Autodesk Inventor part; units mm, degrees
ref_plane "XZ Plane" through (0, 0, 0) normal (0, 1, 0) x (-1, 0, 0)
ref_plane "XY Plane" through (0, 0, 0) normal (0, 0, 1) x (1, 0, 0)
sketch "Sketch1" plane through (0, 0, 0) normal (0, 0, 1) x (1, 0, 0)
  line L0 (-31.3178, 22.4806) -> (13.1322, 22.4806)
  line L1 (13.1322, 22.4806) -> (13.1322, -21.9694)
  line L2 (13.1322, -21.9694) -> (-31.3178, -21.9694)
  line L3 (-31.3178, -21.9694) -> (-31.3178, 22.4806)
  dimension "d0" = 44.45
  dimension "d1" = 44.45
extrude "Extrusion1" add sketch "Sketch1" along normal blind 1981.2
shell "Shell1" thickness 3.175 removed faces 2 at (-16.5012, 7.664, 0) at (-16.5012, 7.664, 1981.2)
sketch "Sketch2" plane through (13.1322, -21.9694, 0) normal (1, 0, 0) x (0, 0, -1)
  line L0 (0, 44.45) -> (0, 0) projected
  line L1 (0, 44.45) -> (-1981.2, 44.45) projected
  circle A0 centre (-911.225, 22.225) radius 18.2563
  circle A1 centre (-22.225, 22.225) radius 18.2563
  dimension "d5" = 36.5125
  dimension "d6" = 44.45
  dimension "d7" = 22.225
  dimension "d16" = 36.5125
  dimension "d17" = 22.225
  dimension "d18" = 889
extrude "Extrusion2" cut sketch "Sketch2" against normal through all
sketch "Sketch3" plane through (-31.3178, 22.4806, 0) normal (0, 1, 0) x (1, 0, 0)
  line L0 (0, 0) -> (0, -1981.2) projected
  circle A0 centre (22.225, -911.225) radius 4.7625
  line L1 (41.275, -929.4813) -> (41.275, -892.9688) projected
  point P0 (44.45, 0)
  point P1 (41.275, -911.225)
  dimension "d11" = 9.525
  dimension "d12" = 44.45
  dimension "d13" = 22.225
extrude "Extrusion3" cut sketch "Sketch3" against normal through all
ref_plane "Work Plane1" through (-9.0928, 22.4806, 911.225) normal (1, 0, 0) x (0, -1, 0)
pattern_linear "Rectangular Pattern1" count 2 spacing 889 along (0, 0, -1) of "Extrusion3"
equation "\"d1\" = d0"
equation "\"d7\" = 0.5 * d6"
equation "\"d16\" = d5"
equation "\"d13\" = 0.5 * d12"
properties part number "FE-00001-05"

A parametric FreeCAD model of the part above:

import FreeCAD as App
import Part
import Sketcher

V = App.Vector
Q = App.Units.Quantity


def faces_at(feature, points):
    """Names of the faces that lie closest to the given points."""
    faces = feature.Shape.Faces
    near = lambda p: min(range(len(faces)), key=lambda i: faces[i].distToShape(Part.Vertex(*p))[0])
    return sorted({f"Face{near(p) + 1}" for p in points})


def add_polygon(sketch, points):
    """Adds a closed chain of lines whose ends are joined by coincident constraints."""
    first, n = sketch.GeometryCount, len(points)
    for a, b in zip(points, points[1:] + points[:1]):
        sketch.addGeometry(Part.LineSegment(App.Vector(*a, 0), App.Vector(*b, 0)), False)
    for i in range(n):
        sketch.addConstraint(Sketcher.Constraint("Coincident", first + i, 2, first + (i + 1) % n, 1))

doc = App.newDocument("Part")
body = doc.addObject("PartDesign::Body", "Body")

# Sketch on XY plane
sketch1 = doc.addObject("Sketcher::SketchObject", "Sketch")
body.addObject(sketch1)
sketch1.AttachmentSupport = (doc.XY_Plane, [""])
sketch1.MapMode = "FlatFace"
add_polygon(sketch1, [(13.1322, 22.4806), (-31.3178, 22.4806), (-31.3178, -21.9694), (13.1322, -21.9694)])  # lines 0-3
sketch1.addConstraint(Sketcher.Constraint("Horizontal", 0))
sketch1.addConstraint(Sketcher.Constraint("Vertical", 1))
sketch1.addConstraint(Sketcher.Constraint("Horizontal", 2))
sketch1.addConstraint(Sketcher.Constraint("Vertical", 3))
sketch1.addConstraint(Sketcher.Constraint("Equal", 2, 1))
sketch1.addConstraint(Sketcher.Constraint("DistanceX", 0, 2, 0, 1, Q("1.75 in")))
sketch1.addConstraint(Sketcher.Constraint("DistanceX", 0, 2, -1, 1, Q("31.3178 mm")))
sketch1.addConstraint(Sketcher.Constraint("DistanceY", -1, 1, 0, 2, Q("22.4806 mm")))
pad1 = doc.addObject("PartDesign::Pad", "Pad")
body.addObject(pad1)
pad1.Profile = sketch1
pad1.Length = Q("78 in")
doc.recompute()

thickness = doc.addObject("PartDesign::Thickness", "Thickness")
body.addObject(thickness)
thickness.Base = (pad1, faces_at(pad1, [(-16.501, 7.664, 0), (-16.501, 7.664, 1981.2)]))
thickness.Value = Q("0.125 in")
thickness.Reversed = True
thickness.Join = "Intersection"

# Sketch on YZ plane
sketch2 = doc.addObject("Sketcher::SketchObject", "Sketch001")
body.addObject(sketch2)
sketch2.AttachmentSupport = (doc.YZ_Plane, [""])
sketch2.MapMode = "FlatFace"
sketch2.AttachmentOffset = App.Placement(V(0, 0, 13.1322), App.Rotation())
sketch2.addGeometry(Part.Circle(V(0.2556, 911.225, 0), V(0, 0, 1), 18.2563), False)
sketch2.addGeometry(Part.Circle(V(0.2556, 22.225, 0), V(0, 0, 1), 18.2563), False)
sketch2.addConstraint(Sketcher.Constraint("Equal", 0, 1))
sketch2.addConstraint(Sketcher.Constraint("Vertical", 0, 3, 1, 3))
sketch2.addConstraint(Sketcher.Constraint("Diameter", 0, Q("1.4375 in")))
sketch2.addConstraint(Sketcher.Constraint("DistanceY", 1, 3, 0, 3, Q("35 in")))
sketch2.addConstraint(Sketcher.Constraint("DistanceY", -1, 1, 1, 3, Q("0.875 in")))
sketch2.addConstraint(Sketcher.Constraint("DistanceX", -1, 1, 0, 3, Q("0.2556 mm")))
pocket1 = doc.addObject("PartDesign::Pocket", "Pocket")
body.addObject(pocket1)
pocket1.Profile = sketch2
pocket1.Type = "ThroughAll"

# Sketch on XZ plane
sketch3 = doc.addObject("Sketcher::SketchObject", "Sketch002")
body.addObject(sketch3)
sketch3.AttachmentSupport = (doc.XZ_Plane, [""])
sketch3.MapMode = "FlatFace"
sketch3.AttachmentOffset = App.Placement(V(0, 0, -22.4806), App.Rotation())
sketch3.addGeometry(Part.Circle(V(-9.0928, 911.225, 0), V(0, 0, 1), 4.7625), False)
sketch3.addConstraint(Sketcher.Constraint("Diameter", 0, Q("0.375 in")))
sketch3.addConstraint(Sketcher.Constraint("DistanceY", -1, 1, 0, 3, Q("35.875 in")))
sketch3.addConstraint(Sketcher.Constraint("DistanceX", 0, 3, -1, 1, Q("9.0928 mm")))
pocket2 = doc.addObject("PartDesign::Pocket", "Pocket001")
body.addObject(pocket2)
pocket2.Profile = sketch3
pocket2.Type = "ThroughAll"
pocket2.Reversed = True
doc.recompute()

linearpattern = doc.addObject("PartDesign::LinearPattern", "LinearPattern")
body.addObject(linearpattern)
linearpattern.Originals = [pocket2]
linearpattern.Direction = (doc.Z_Axis, [""])
linearpattern.Mode = "offset"
linearpattern.Offset = Q("35 in")
linearpattern.Occurrences = 2
linearpattern.Reversed = True
body.Tip = linearpattern

doc.recompute()
